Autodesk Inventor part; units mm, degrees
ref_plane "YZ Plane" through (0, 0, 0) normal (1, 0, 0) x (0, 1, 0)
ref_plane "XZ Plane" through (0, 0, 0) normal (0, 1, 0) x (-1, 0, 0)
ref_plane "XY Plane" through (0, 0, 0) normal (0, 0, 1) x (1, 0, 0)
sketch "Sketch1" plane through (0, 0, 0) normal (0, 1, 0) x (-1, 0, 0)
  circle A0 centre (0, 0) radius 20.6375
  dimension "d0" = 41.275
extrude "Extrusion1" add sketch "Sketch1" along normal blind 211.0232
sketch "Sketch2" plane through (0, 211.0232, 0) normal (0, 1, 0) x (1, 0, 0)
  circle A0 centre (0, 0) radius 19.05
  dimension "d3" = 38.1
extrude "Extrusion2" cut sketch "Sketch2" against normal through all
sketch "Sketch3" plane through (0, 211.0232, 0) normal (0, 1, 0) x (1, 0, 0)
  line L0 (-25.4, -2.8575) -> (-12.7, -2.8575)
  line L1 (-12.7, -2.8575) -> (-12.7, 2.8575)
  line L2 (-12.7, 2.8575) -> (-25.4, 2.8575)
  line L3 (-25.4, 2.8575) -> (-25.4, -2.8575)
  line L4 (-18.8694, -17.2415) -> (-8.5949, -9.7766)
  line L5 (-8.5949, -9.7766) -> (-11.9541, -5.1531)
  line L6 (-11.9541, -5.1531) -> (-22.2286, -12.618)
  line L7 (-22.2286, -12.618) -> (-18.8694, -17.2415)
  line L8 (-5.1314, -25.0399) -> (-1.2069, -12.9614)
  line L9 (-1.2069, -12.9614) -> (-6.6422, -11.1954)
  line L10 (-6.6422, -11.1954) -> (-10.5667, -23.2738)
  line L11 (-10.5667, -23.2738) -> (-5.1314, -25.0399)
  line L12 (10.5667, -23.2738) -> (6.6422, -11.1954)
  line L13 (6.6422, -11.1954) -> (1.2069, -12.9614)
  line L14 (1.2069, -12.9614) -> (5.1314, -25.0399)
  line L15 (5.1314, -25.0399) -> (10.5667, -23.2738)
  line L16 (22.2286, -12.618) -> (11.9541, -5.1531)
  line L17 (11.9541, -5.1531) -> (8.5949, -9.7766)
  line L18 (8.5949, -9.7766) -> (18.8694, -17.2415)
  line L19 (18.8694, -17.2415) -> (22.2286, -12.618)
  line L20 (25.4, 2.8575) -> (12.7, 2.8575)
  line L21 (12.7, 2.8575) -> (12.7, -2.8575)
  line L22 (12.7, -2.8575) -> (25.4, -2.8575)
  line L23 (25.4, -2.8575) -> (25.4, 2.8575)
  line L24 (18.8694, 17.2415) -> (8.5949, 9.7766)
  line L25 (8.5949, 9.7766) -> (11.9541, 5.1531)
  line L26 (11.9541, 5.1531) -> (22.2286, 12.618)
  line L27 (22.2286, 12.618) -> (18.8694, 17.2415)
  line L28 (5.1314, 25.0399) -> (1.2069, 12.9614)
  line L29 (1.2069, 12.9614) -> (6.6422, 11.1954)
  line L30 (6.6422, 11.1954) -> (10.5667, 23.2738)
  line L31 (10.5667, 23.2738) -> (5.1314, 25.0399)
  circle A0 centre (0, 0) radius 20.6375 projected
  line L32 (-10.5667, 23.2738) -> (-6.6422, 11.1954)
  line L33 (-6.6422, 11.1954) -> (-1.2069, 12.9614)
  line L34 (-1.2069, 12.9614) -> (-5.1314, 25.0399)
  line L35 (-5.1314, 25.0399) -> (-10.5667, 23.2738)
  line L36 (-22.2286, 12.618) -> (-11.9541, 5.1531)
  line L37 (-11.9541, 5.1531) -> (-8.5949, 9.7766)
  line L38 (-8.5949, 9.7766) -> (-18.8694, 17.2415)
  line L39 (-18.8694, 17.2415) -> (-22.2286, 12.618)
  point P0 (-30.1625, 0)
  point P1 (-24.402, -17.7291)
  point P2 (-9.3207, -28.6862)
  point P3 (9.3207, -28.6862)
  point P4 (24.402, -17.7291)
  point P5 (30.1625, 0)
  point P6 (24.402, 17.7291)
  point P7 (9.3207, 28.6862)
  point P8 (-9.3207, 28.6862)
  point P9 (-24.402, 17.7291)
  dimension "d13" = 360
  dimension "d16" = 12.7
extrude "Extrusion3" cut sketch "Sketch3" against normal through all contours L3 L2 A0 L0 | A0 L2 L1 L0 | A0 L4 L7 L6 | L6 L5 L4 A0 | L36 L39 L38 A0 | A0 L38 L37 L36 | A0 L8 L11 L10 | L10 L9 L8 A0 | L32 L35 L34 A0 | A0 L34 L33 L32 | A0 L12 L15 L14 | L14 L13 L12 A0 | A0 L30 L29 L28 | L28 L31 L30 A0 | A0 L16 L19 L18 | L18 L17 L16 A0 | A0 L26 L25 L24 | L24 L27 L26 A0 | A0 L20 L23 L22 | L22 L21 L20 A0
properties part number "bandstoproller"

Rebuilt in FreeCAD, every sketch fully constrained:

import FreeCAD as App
import Part
import Sketcher

V = App.Vector
Q = App.Units.Quantity


def add_polygon(sketch, points):
    """Adds a closed chain of lines whose ends are joined by coincident constraints."""
    first, n = sketch.GeometryCount, len(points)
    for a, b in zip(points, points[1:] + points[:1]):
        sketch.addGeometry(Part.LineSegment(App.Vector(*a, 0), App.Vector(*b, 0)), False)
    for i in range(n):
        sketch.addConstraint(Sketcher.Constraint("Coincident", first + i, 2, first + (i + 1) % n, 1))

doc = App.newDocument("Part")
body = doc.addObject("PartDesign::Body", "Body")
body.AllowCompound = True

# Sketch on XZ plane
sketch1 = doc.addObject("Sketcher::SketchObject", "Sketch")
body.addObject(sketch1)
sketch1.AttachmentSupport = (doc.XZ_Plane, [""])
sketch1.MapMode = "FlatFace"
sketch1.addGeometry(Part.Circle(V(0, 0, 0), V(0, 0, 1), 21), False)
sketch1.addConstraint([
    Sketcher.Constraint("Coincident", 0, 3, -1, 1),
    Sketcher.Constraint("Diameter", 0, Q("1.625 in")),
])
pad1 = doc.addObject("PartDesign::Pad", "Pad")
body.addObject(pad1)
pad1.Profile = sketch1
pad1.Length = Q("8.308 in")
pad1.Reversed = True

# Sketch on XZ plane
sketch2 = doc.addObject("Sketcher::SketchObject", "Sketch001")
body.addObject(sketch2)
sketch2.AttachmentSupport = (doc.XZ_Plane, [""])
sketch2.MapMode = "FlatFace"
sketch2.AttachmentOffset = App.Placement(V(0, 0, -8.308 * 25.4), App.Rotation())
sketch2.addGeometry(Part.Circle(V(0, 0, 0), V(0, 0, 1), 19), False)
sketch2.addConstraint([
    Sketcher.Constraint("Coincident", 0, 3, -1, 1),
    Sketcher.Constraint("Diameter", 0, Q("1.5 in")),
])
pocket1 = doc.addObject("PartDesign::Pocket", "Pocket")
body.addObject(pocket1)
pocket1.Profile = sketch2
pocket1.Type = "ThroughAll"
pocket1.Reversed = True

# Sketch on XZ plane
sketch3 = doc.addObject("Sketcher::SketchObject", "Sketch002")
body.addObject(sketch3)
sketch3.AttachmentSupport = (doc.XZ_Plane, [""])
sketch3.MapMode = "FlatFace"
sketch3.AttachmentOffset = App.Placement(V(0, 0, -8.308 * 25.4), App.Rotation())
add_polygon(sketch3, [(-25, -3), (-25, 3), (-13, 3), (-13, -3)])  # lines 0-3
add_polygon(sketch3, [(-19, 17), (-9, 10), (-12, 5), (-22, 13)])  # lines 4-7
add_polygon(sketch3, [(-22, -13), (-12, -5), (-9, -10), (-19, -17)])  # lines 8-11
add_polygon(sketch3, [(-5, 25), (-1, 13), (-7, 11), (-11, 23)])  # lines 12-15
add_polygon(sketch3, [(-11, -23), (-7, -11), (-1, -13), (-5, -25)])  # lines 16-19
add_polygon(sketch3, [(11, 23), (7, 11), (1, 13), (5, 25)])  # lines 20-23
add_polygon(sketch3, [(7, -11), (11, -23), (5, -25), (1, -13)])  # lines 24-27
add_polygon(sketch3, [(22, 13), (12, 5), (9, 10), (19, 17)])  # lines 28-31
add_polygon(sketch3, [(12, -5), (22, -13), (19, -17), (9, -10)])  # lines 32-35
add_polygon(sketch3, [(25, -3), (13, -3), (13, 3), (25, 3)])  # lines 36-39
sketch3.addConstraint([
    Sketcher.Constraint("Vertical", 0),
    Sketcher.Constraint("Horizontal", 1),
    Sketcher.Constraint("Vertical", 2),
    Sketcher.Constraint("Horizontal", 3),
    Sketcher.Constraint("Horizontal", 36),
    Sketcher.Constraint("Vertical", 37),
    Sketcher.Constraint("Horizontal", 38),
    Sketcher.Constraint("Vertical", 39),
    Sketcher.Constraint("Symmetric", 16, 2, 20, 2, -1, 1),
    Sketcher.Constraint("Symmetric", 17, 2, 21, 2, -1, 1),
    Sketcher.Constraint("Symmetric", 18, 2, 22, 2, -1, 1),
    Sketcher.Constraint("Symmetric", 19, 2, 23, 2, -1, 1),
    Sketcher.Constraint("Symmetric", 14, 2, 24, 2, -1, 1),
    Sketcher.Constraint("Symmetric", 15, 2, 25, 2, -1, 1),
    Sketcher.Constraint("Symmetric", 12, 2, 26, 2, -1, 1),
    Sketcher.Constraint("Symmetric", 13, 2, 27, 2, -1, 1),
    Sketcher.Constraint("Symmetric", 8, 2, 28, 2, -1, 1),
    Sketcher.Constraint("Symmetric", 9, 2, 29, 2, -1, 1),
    Sketcher.Constraint("Symmetric", 10, 2, 30, 2, -1, 1),
    Sketcher.Constraint("Symmetric", 11, 2, 31, 2, -1, 1),
    Sketcher.Constraint("Symmetric", 6, 2, 32, 2, -1, 1),
    Sketcher.Constraint("Symmetric", 7, 2, 33, 2, -1, 1),
    Sketcher.Constraint("Symmetric", 4, 2, 34, 2, -1, 1),
    Sketcher.Constraint("Symmetric", 5, 2, 35, 2, -1, 1),
    Sketcher.Constraint("Symmetric", 1, 2, 36, 2, -1, 1),
    Sketcher.Constraint("Symmetric", 3, 2, 38, 2, -1, 1),
    Sketcher.Constraint("Symmetric", 13, 2, 20, 2, -2),
    Sketcher.Constraint("Symmetric", 12, 2, 21, 2, -2),
    Sketcher.Constraint("Symmetric", 15, 2, 22, 2, -2),
    Sketcher.Constraint("Symmetric", 14, 2, 23, 2, -2),
    Sketcher.Constraint("Symmetric", 5, 2, 28, 2, -2),
    Sketcher.Constraint("Symmetric", 4, 2, 29, 2, -2),
    Sketcher.Constraint("Symmetric", 7, 2, 30, 2, -2),
    Sketcher.Constraint("Symmetric", 6, 2, 31, 2, -2),
    Sketcher.Constraint("Perpendicular", 4, 5),
    Sketcher.Constraint("Perpendicular", 5, 6),
    Sketcher.Constraint("Perpendicular", 6, 7),
    Sketcher.Constraint("Perpendicular", 12, 13),
    Sketcher.Constraint("Perpendicular", 13, 14),
    Sketcher.Constraint("Perpendicular", 14, 15),
    Sketcher.Constraint("Horizontal", 3, 2, 36, 2),
    Sketcher.Constraint("Equal", 10, 12),
    Sketcher.Constraint("Equal", 11, 13),
    Sketcher.Constraint("DistanceX", 1, 1, 1, 2, Q("0.5 in")),
    Sketcher.Constraint("Distance", 4, Q("0.5 in")),
    Sketcher.Constraint("DistanceX", 1, 2, -1, 1, Q("0.5 in")),
    Sketcher.Constraint("Angle", 4, Q("-36.0001 deg")),
    Sketcher.Constraint("Angle", 12, Q("-72.0002 deg")),
    Sketcher.Constraint("DistanceY", 0, 1, 0, 2, Q("0.225 in")),
    Sketcher.Constraint("Distance", 5, Q("0.225 in")),
    Sketcher.Constraint("DistanceX", 14, 2, -1, 1, Q("0.416 in")),
    Sketcher.Constraint("DistanceY", 20, 2, 31, 2, Q("0.056 in")),
    Sketcher.Constraint("DistanceY", -1, 1, 4, 2, Q("0.3849 in")),
    Sketcher.Constraint("DistanceX", 7, 2, -1, 1, Q("0.7429 in")),
])
pocket2 = doc.addObject("PartDesign::Pocket", "Pocket001")
body.addObject(pocket2)
pocket2.Profile = sketch3
pocket2.Type = "ThroughAll"
pocket2.Reversed = True

doc.recompute()
